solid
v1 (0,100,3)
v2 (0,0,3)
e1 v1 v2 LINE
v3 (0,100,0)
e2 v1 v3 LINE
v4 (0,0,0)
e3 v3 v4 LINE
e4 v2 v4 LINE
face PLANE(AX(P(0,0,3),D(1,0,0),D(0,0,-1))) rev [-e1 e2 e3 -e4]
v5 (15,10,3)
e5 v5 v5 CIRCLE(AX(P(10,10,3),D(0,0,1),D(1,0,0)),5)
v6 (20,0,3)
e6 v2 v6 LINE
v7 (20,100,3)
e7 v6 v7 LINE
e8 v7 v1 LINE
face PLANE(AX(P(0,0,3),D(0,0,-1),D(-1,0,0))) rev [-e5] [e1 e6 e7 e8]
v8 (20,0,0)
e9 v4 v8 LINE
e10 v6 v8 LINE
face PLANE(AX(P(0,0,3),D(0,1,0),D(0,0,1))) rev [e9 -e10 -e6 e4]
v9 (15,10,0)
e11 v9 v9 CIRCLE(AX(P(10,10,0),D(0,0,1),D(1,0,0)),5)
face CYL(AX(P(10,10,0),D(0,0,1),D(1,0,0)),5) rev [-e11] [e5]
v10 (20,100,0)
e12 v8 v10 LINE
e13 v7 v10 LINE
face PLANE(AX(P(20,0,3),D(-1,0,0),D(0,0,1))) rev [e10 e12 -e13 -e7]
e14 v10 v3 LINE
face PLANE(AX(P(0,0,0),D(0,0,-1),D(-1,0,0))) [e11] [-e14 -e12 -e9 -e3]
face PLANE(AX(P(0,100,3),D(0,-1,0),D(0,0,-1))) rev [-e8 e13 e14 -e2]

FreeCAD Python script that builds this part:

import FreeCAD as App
import Part
import Sketcher


def add_polygon(sketch, points):
    """Adds a closed chain of lines whose ends are joined by coincident constraints."""
    first, n = sketch.GeometryCount, len(points)
    for a, b in zip(points, points[1:] + points[:1]):
        sketch.addGeometry(Part.LineSegment(App.Vector(*a, 0), App.Vector(*b, 0)), False)
    for i in range(n):
        sketch.addConstraint(Sketcher.Constraint("Coincident", first + i, 2, first + (i + 1) % n, 1))

doc = App.newDocument("Part")
body = doc.addObject("PartDesign::Body", "Body")

# Sketch on XY plane
sketch1 = body.newObject("Sketcher::SketchObject", "Sketch")
sketch1.AttachmentSupport = (doc.getObject("XY_Plane"), [""])
sketch1.MapMode = "FlatFace"
add_polygon(sketch1, [(0, 100), (0, 0), (20, 0), (20, 100)])  # lines 0-3
sketch1.addConstraint([
    Sketcher.Constraint("Vertical", 0),
    Sketcher.Constraint("Horizontal", 1),
    Sketcher.Constraint("Vertical", 2),
    Sketcher.Constraint("Horizontal", 3),
    Sketcher.Constraint("Coincident", 0, 2, -1, 1),
    Sketcher.Constraint("DistanceX", 1, 1, 1, 2, 20.0),
    Sketcher.Constraint("DistanceY", 0, 2, 0, 1, 100.0),
])
pad1 = body.newObject("PartDesign::Pad", "Pad")
pad1.Profile = sketch1
pad1.Length = 3

# Sketch on XY plane
sketch2 = body.newObject("Sketcher::SketchObject", "Sketch001")
sketch2.AttachmentSupport = (doc.getObject("XY_Plane"), [""])
sketch2.MapMode = "FlatFace"
sketch2.AttachmentOffset = App.Placement(App.Vector(0, 0, 3), App.Rotation())
sketch2.addGeometry(Part.Circle(App.Vector(10, 10, 0), App.Vector(0, 0, 1), 5), False)
sketch2.addConstraint([
    Sketcher.Constraint("Diameter", 0, 10.0),
    Sketcher.Constraint("DistanceX", -1, 1, 0, 3, 10.0),
    Sketcher.Constraint("DistanceY", -1, 1, 0, 3, 10.0),
])
pocket1 = body.newObject("PartDesign::Pocket", "Pocket")
pocket1.Profile = sketch2
pocket1.Type = "ThroughAll"

doc.recompute()
